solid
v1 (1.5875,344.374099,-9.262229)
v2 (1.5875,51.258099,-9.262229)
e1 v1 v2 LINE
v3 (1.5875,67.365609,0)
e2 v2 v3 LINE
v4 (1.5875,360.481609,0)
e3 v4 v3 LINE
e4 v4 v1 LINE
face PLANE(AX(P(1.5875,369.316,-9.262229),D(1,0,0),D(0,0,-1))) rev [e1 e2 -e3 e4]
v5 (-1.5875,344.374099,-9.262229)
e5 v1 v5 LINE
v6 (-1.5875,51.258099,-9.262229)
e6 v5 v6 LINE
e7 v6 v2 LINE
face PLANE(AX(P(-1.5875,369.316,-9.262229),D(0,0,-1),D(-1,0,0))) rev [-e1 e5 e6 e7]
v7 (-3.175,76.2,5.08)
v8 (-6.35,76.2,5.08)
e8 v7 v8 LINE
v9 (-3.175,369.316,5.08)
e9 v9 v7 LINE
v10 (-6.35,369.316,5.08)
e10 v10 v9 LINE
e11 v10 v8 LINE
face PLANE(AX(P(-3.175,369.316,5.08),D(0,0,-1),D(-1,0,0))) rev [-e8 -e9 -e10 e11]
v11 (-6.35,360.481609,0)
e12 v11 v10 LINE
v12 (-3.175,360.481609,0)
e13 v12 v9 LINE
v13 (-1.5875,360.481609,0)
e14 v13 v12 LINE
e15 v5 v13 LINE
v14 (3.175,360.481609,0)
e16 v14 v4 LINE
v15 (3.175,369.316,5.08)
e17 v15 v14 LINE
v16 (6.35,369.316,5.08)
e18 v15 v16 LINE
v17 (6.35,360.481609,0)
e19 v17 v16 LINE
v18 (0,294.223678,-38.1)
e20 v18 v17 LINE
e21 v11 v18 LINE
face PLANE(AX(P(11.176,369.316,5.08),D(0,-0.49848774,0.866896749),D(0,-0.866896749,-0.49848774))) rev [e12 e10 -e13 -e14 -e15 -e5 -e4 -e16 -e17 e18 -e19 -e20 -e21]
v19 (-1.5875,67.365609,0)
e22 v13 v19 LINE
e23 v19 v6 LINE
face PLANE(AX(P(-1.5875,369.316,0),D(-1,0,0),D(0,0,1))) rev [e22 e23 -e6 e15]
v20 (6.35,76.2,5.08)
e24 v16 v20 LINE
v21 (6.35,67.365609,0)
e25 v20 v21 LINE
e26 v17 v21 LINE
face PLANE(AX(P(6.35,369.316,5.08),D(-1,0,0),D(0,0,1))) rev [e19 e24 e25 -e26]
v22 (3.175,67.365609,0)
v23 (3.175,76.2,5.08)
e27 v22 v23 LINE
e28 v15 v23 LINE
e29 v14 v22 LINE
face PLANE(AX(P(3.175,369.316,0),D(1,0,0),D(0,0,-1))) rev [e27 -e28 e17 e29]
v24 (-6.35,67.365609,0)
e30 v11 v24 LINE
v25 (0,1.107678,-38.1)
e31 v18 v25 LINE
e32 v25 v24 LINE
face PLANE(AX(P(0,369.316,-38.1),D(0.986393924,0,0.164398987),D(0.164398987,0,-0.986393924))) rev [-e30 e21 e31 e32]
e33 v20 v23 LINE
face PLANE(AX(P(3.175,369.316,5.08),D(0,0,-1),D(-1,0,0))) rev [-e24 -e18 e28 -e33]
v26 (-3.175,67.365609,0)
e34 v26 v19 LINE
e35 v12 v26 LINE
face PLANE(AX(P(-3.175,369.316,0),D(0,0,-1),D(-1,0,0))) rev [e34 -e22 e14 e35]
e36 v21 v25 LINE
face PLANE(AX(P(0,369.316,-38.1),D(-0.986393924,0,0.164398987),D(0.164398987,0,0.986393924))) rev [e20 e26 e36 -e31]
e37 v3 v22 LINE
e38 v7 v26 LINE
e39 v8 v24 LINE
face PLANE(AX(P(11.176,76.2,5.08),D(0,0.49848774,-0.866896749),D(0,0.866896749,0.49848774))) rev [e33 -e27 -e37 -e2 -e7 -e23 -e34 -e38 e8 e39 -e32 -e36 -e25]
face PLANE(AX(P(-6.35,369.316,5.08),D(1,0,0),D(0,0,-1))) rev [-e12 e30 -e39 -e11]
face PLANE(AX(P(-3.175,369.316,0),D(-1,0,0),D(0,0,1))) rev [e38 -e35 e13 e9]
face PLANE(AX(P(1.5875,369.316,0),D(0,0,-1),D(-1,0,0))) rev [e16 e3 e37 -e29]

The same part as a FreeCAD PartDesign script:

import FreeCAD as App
import Part
import Sketcher

V = App.Vector
Q = App.Units.Quantity


def add_polygon(sketch, points):
    """Adds a closed chain of lines whose ends are joined by coincident constraints."""
    first, n = sketch.GeometryCount, len(points)
    for a, b in zip(points, points[1:] + points[:1]):
        sketch.addGeometry(Part.LineSegment(App.Vector(*a, 0), App.Vector(*b, 0)), False)
    for i in range(n):
        sketch.addConstraint(Sketcher.Constraint("Coincident", first + i, 2, first + (i + 1) % n, 1))

doc = App.newDocument("Part")
params = doc.addObject("Spreadsheet::Sheet", "Params")
for row, (alias, value) in enumerate([
    ("sketch1_height", "0.2 in"),
    ("sketch1_width", "0.125 in"),
    ("sketch1_width2", "0.0625 in"),
    ("pad1_length", "14.54 in"),
    ("sketch2_height", "1.7 in"),
    ("pocket1_length", "0.69 in"),
    ("sketch3_width", "3 in"),
    ("sketch3_height", "1.7 in"),
    ("pocket2_length", "0.69 in"),
], start=1):
    params.set(f"A{row}", alias)
    params.set(f"B{row}", "=" + value)
    params.setAlias(f"B{row}", alias)

body = doc.addObject("PartDesign::Body", "Body")

# Sketch on XZ plane
sketch1 = doc.addObject("Sketcher::SketchObject", "Sketch")
body.addObject(sketch1)
sketch1.AttachmentSupport = (doc.XZ_Plane, [""])
sketch1.MapMode = "FlatFace"
add_polygon(sketch1, [(0, -38.1), (-6.35, 0), (-6.35, 5.08), (-3.175, 5.08), (-3.175, 0), (-1.5875, 0), (-1.5875, -9.262229), (1.5875, -9.262229), (1.5875, 0), (3.175, 0), (3.175, 5.08), (6.35, 5.08), (6.35, 0)])  # lines 0-12
sketch1.addConstraint(Sketcher.Constraint("Vertical", 1))
sketch1.addConstraint(Sketcher.Constraint("Horizontal", 2))
sketch1.addConstraint(Sketcher.Constraint("Vertical", 3))
sketch1.addConstraint(Sketcher.Constraint("Horizontal", 4))
sketch1.addConstraint(Sketcher.Constraint("Vertical", 5))
sketch1.addConstraint(Sketcher.Constraint("Horizontal", 6))
sketch1.addConstraint(Sketcher.Constraint("Vertical", 7))
sketch1.addConstraint(Sketcher.Constraint("Horizontal", 8))
sketch1.addConstraint(Sketcher.Constraint("Vertical", 9))
sketch1.addConstraint(Sketcher.Constraint("Horizontal", 10))
sketch1.addConstraint(Sketcher.Constraint("Vertical", 11))
sketch1.addConstraint(Sketcher.Constraint("Symmetric", 4, 2, 7, 2, -1, 1))
sketch1.addConstraint(Sketcher.Constraint("Symmetric", 0, 2, 11, 2, -1, 1))
sketch1.addConstraint(Sketcher.Constraint("Symmetric", 3, 2, 8, 2, -2))
sketch1.addConstraint(Sketcher.Constraint("PointOnObject", 0, 2, -1))
sketch1.addConstraint(Sketcher.Constraint("PointOnObject", 12, 2, -2))
sketch1.addConstraint(Sketcher.Constraint("Horizontal", 2, 2, 9, 2))
sketch1.addConstraint(Sketcher.Constraint("Equal", 2, 6))
sketch1.addConstraint(Sketcher.Constraint("DistanceY", 1, 1, 1, 2, Q("0.2 in")))
sketch1.addConstraint(Sketcher.Constraint("DistanceY", 12, 2, -1, 1, Q("1.5 in")))
sketch1.addConstraint(Sketcher.Constraint("DistanceX", 2, 1, 2, 2, Q("0.125 in")))
sketch1.addConstraint(Sketcher.Constraint("DistanceX", 4, 1, 4, 2, Q("0.0625 in")))
sketch1.addConstraint(Sketcher.Constraint("DistanceY", 5, 2, 5, 1, 9.262229))
sketch1.setExpression("Constraints[31]", "Params.sketch1_height")
sketch1.setExpression("Constraints[33]", "Params.sketch1_width")
sketch1.setExpression("Constraints[34]", "Params.sketch1_width2")
pad1 = doc.addObject("PartDesign::Pad", "Pad")
body.addObject(pad1)
pad1.Profile = sketch1
pad1.setExpression("Length", "Params.pad1_length")
pad1.Reversed = True

# Sketch on YZ plane
sketch2 = doc.addObject("Sketcher::SketchObject", "Sketch001")
body.addObject(sketch2)
sketch2.AttachmentSupport = (doc.YZ_Plane, [""])
sketch2.MapMode = "FlatFace"
sketch2.AttachmentOffset = App.Placement(V(0, 0, -0.25 * 25.4), App.Rotation())
add_polygon(sketch2, [(294.223678, -38.1), (369.316, 5.08), (369.316, -38.1)])  # lines 0-2
sketch2.addConstraint(Sketcher.Constraint("Vertical", 1))
sketch2.addConstraint(Sketcher.Constraint("Horizontal", 2))
sketch2.addConstraint(Sketcher.Constraint("DistanceY", 1, 2, 1, 1, Q("1.7 in")))
sketch2.addConstraint(Sketcher.Constraint("DistanceY", -1, 1, 0, 2, Q("0.2 in")))
sketch2.addConstraint(Sketcher.Constraint("Angle", 0, Q("29.9 deg")))
sketch2.addConstraint(Sketcher.Constraint("DistanceX", -1, 1, 0, 2, Q("14.54 in")))
sketch2.setExpression("Constraints[5]", "Params.sketch2_height")
pocket1 = doc.addObject("PartDesign::Pocket", "Pocket")
body.addObject(pocket1)
pocket1.Profile = sketch2
pocket1.setExpression("Length", "Params.pocket1_length")
pocket1.Reversed = True

# Sketch on YZ plane
sketch3 = doc.addObject("Sketcher::SketchObject", "Sketch002")
body.addObject(sketch3)
sketch3.AttachmentSupport = (doc.YZ_Plane, [""])
sketch3.MapMode = "FlatFace"
sketch3.AttachmentOffset = App.Placement(V(0, 0, -0.25 * 25.4), App.Rotation())
add_polygon(sketch3, [(76.2, 5.08), (1.107678, -38.1), (0, -38.1), (0, 5.08)])  # lines 0-3
sketch3.addConstraint(Sketcher.Constraint("Horizontal", 1))
sketch3.addConstraint(Sketcher.Constraint("Vertical", 2))
sketch3.addConstraint(Sketcher.Constraint("Horizontal", 3))
sketch3.addConstraint(Sketcher.Constraint("PointOnObject", 1, 2, -2))
sketch3.addConstraint(Sketcher.Constraint("DistanceX", 3, 1, 3, 2, Q("3 in")))
sketch3.addConstraint(Sketcher.Constraint("DistanceY", 2, 1, 2, 2, Q("1.7 in")))
sketch3.addConstraint(Sketcher.Constraint("DistanceY", 0, 2, -1, 1, Q("1.5 in")))
sketch3.addConstraint(Sketcher.Constraint("Angle", 0, Q("-150.1 deg")))
sketch3.setExpression("Constraints[8]", "Params.sketch3_width")
sketch3.setExpression("Constraints[9]", "Params.sketch3_height")
pocket2 = doc.addObject("PartDesign::Pocket", "Pocket001")
body.addObject(pocket2)
pocket2.Profile = sketch3
pocket2.setExpression("Length", "Params.pocket2_length")
pocket2.Reversed = True

doc.recompute()
